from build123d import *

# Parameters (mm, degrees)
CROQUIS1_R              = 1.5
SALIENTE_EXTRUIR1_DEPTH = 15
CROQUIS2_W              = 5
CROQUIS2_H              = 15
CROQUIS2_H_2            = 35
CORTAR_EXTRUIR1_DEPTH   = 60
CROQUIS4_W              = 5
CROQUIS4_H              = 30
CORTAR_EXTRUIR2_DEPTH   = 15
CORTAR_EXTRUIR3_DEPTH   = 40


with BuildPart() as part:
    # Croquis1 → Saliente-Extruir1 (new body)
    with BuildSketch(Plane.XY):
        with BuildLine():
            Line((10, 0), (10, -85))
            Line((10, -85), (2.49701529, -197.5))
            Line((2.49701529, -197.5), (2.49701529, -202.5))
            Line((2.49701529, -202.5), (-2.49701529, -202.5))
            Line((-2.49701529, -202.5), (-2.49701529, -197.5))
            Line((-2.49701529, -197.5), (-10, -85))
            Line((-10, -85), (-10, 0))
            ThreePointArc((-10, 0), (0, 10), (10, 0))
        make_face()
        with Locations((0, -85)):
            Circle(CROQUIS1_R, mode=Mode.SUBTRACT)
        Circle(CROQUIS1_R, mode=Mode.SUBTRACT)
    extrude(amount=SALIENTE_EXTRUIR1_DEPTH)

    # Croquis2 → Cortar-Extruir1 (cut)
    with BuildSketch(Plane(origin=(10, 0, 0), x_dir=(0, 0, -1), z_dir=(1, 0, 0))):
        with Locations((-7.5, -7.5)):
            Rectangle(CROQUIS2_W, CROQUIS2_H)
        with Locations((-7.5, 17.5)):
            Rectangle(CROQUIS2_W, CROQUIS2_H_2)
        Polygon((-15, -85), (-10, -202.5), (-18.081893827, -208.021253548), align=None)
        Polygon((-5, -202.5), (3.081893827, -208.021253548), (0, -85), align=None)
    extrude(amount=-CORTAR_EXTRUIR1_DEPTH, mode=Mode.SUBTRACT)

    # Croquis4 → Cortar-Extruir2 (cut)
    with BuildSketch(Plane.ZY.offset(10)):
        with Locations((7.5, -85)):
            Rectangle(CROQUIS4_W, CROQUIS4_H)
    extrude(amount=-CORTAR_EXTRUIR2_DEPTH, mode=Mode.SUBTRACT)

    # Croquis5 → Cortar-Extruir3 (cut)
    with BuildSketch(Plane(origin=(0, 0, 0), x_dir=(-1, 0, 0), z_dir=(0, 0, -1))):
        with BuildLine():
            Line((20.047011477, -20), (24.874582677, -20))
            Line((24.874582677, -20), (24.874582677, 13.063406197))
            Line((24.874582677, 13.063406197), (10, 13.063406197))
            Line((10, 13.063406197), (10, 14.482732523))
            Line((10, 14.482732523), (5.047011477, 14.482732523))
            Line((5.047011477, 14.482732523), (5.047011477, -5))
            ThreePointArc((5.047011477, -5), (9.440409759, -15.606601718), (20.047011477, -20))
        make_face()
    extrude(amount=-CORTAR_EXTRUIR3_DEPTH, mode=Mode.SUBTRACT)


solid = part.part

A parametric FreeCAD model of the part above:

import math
import FreeCAD as App
import Part
import Sketcher


def add_polygon(sketch, points):
    """Adds a closed chain of lines whose ends are joined by coincident constraints."""
    first, n = sketch.GeometryCount, len(points)
    for a, b in zip(points, points[1:] + points[:1]):
        sketch.addGeometry(Part.LineSegment(App.Vector(*a, 0), App.Vector(*b, 0)), False)
    for i in range(n):
        sketch.addConstraint(Sketcher.Constraint("Coincident", first + i, 2, first + (i + 1) % n, 1))

doc = App.newDocument("Part")
params = doc.addObject("Spreadsheet::Sheet", "Params")
for row, (alias, value) in enumerate([
    ("sketch1_diameter", "3 mm"),
    ("sketch1_radius", "10 mm"),
    ("sketch1_height", "85 mm"),
    ("sketch1_height2", "5 mm"),
    ("pad1_length", "15 mm"),
    ("sketch2_width", "50 mm"),
    ("sketch2_height", "5 mm"),
    ("pocket1_length", "60 mm"),
    ("sketch3_width", "30 mm"),
    ("sketch3_height", "5 mm"),
    ("pocket2_length", "15 mm"),
    ("sketch4_radius", "15 mm"),
    ("pocket3_length", "40 mm"),
], start=1):
    params.set(f"A{row}", alias)
    params.set(f"B{row}", "=" + value)
    params.setAlias(f"B{row}", alias)

body = doc.addObject("PartDesign::Body", "Body")

# Sketch on XY plane
sketch1 = body.newObject("Sketcher::SketchObject", "Sketch")
sketch1.AttachmentSupport = (doc.getObject("XY_Plane"), [""])
sketch1.MapMode = "FlatFace"
sketch1.addGeometry(Part.LineSegment(App.Vector(10, -85, 0), App.Vector(10, 0, 0)), False)
sketch1.addGeometry(Part.ArcOfCircle(Part.Circle(App.Vector(0, 0, 0), App.Vector(0, 0, 1), 10), math.radians(0), math.radians(180)), False)
sketch1.addGeometry(Part.LineSegment(App.Vector(-10, 0, 0), App.Vector(-10, -85, 0)), False)
sketch1.addGeometry(Part.LineSegment(App.Vector(-10, -85, 0), App.Vector(-2.5, -197.5, 0)), False)
sketch1.addGeometry(Part.LineSegment(App.Vector(-2.5, -197.5, 0), App.Vector(-2.5, -202.5, 0)), False)
sketch1.addGeometry(Part.LineSegment(App.Vector(-2.5, -202.5, 0), App.Vector(2.5, -202.5, 0)), False)
sketch1.addGeometry(Part.LineSegment(App.Vector(2.5, -202.5, 0), App.Vector(2.5, -197.5, 0)), False)
sketch1.addGeometry(Part.LineSegment(App.Vector(2.5, -197.5, 0), App.Vector(10, -85, 0)), False)
sketch1.addGeometry(Part.Circle(App.Vector(0, -85, 0), App.Vector(0, 0, 1), 1.5), False)
sketch1.addGeometry(Part.Circle(App.Vector(0, 0, 0), App.Vector(0, 0, 1), 1.5), False)
sketch1.addConstraint(Sketcher.Constraint("Tangent", 0, 2, 1, 1))
sketch1.addConstraint(Sketcher.Constraint("Tangent", 1, 2, 2, 1))
sketch1.addConstraint(Sketcher.Constraint("Coincident", 2, 2, 3, 1))
sketch1.addConstraint(Sketcher.Constraint("Coincident", 3, 2, 4, 1))
sketch1.addConstraint(Sketcher.Constraint("Coincident", 4, 2, 5, 1))
sketch1.addConstraint(Sketcher.Constraint("Coincident", 5, 2, 6, 1))
sketch1.addConstraint(Sketcher.Constraint("Coincident", 6, 2, 7, 1))
sketch1.addConstraint(Sketcher.Constraint("Coincident", 7, 2, 0, 1))
sketch1.addConstraint(Sketcher.Constraint("Vertical", 0))
sketch1.addConstraint(Sketcher.Constraint("Vertical", 2))
sketch1.addConstraint(Sketcher.Constraint("Vertical", 4))
sketch1.addConstraint(Sketcher.Constraint("Horizontal", 5))
sketch1.addConstraint(Sketcher.Constraint("Vertical", 6))
sketch1.addConstraint(Sketcher.Constraint("Coincident", 1, 3, -1, 1))
sketch1.addConstraint(Sketcher.Constraint("Coincident", 9, 3, -1, 1))
sketch1.addConstraint(Sketcher.Constraint("Equal", 8, 9))
sketch1.addConstraint(Sketcher.Constraint("Symmetric", 3, 2, 6, 2, -2))
sketch1.addConstraint(Sketcher.Constraint("PointOnObject", 8, 3, -2))
sketch1.addConstraint(Sketcher.Constraint("Horizontal", 8, 3, 2, 2))
sketch1.addConstraint(Sketcher.Constraint("Horizontal", 2, 2, 7, 2))
sketch1.addConstraint(Sketcher.Constraint("Diameter", 8, 3.0))
sketch1.addConstraint(Sketcher.Constraint("Radius", 1, 10.0))
sketch1.addConstraint(Sketcher.Constraint("DistanceY", 0, 1, 0, 2, 85.0))
sketch1.addConstraint(Sketcher.Constraint("DistanceY", 4, 2, 4, 1, 5.0))
sketch1.addConstraint(Sketcher.Constraint("DistanceY", 3, 2, -1, 1, 197.5))
sketch1.addConstraint(Sketcher.Constraint("DistanceX", 5, 1, 5, 2, 4.994031))
sketch1.setExpression("Constraints[20]", "Params.sketch1_diameter")
sketch1.setExpression("Constraints[21]", "Params.sketch1_radius")
sketch1.setExpression("Constraints[22]", "Params.sketch1_height")
sketch1.setExpression("Constraints[23]", "Params.sketch1_height2")
pad1 = body.newObject("PartDesign::Pad", "Pad")
pad1.Profile = sketch1
pad1.setExpression("Length", "Params.pad1_length")

# Sketch on YZ plane
sketch2 = body.newObject("Sketcher::SketchObject", "Sketch001")
sketch2.AttachmentSupport = (doc.getObject("YZ_Plane"), [""])
sketch2.MapMode = "FlatFace"
sketch2.AttachmentOffset = App.Placement(App.Vector(0, 0, 10), App.Rotation())
add_polygon(sketch2, [(-15, 10), (-15, 5), (35, 5), (35, 10)])  # lines 0-3
add_polygon(sketch2, [(-202, 10), (-85, 15), (-208, 18)])  # lines 4-6
add_polygon(sketch2, [(-202, 5), (-208, -3), (-85, 0)])  # lines 7-9
sketch2.addConstraint(Sketcher.Constraint("Vertical", 0))
sketch2.addConstraint(Sketcher.Constraint("Horizontal", 1))
sketch2.addConstraint(Sketcher.Constraint("Vertical", 2))
sketch2.addConstraint(Sketcher.Constraint("Horizontal", 3))
sketch2.addConstraint(Sketcher.Constraint("PointOnObject", 8, 2, -1))
sketch2.addConstraint(Sketcher.Constraint("Horizontal", 3, 2, 6, 2))
sketch2.addConstraint(Sketcher.Constraint("Horizontal", 1, 2, 9, 2))
sketch2.addConstraint(Sketcher.Constraint("Vertical", 5, 2, 7, 2))
sketch2.addConstraint(Sketcher.Constraint("Vertical", 4, 2, 8, 2))
sketch2.addConstraint(Sketcher.Constraint("Vertical", 6, 2, 9, 2))
sketch2.addConstraint(Sketcher.Constraint("Equal", 6, 7))
sketch2.addConstraint(Sketcher.Constraint("Equal", 5, 8))
sketch2.addConstraint(Sketcher.Constraint("DistanceX", 1, 1, 1, 2, 50.0))
sketch2.addConstraint(Sketcher.Constraint("DistanceY", 0, 2, 0, 1, 5.0))
sketch2.addConstraint(Sketcher.Constraint("DistanceX", 0, 2, -1, 1, 15.0))
sketch2.addConstraint(Sketcher.Constraint("DistanceY", -1, 1, 0, 2, 5.0))
sketch2.addConstraint(Sketcher.Constraint("DistanceX", 4, 2, -1, 1, 85.0))
sketch2.addConstraint(Sketcher.Constraint("DistanceX", 6, 2, -1, 1, 202.5))
sketch2.addConstraint(Sketcher.Constraint("Distance", 5, 123.059851))
sketch2.addConstraint(Sketcher.Constraint("Distance", 6, 9.787811))
sketch2.setExpression("Constraints[22]", "Params.sketch2_width")
sketch2.setExpression("Constraints[23]", "Params.sketch2_height")
pocket1 = body.newObject("PartDesign::Pocket", "Pocket")
pocket1.Profile = sketch2
pocket1.setExpression("Length", "Params.pocket1_length")

# Sketch on YZ plane
sketch3 = body.newObject("Sketcher::SketchObject", "Sketch002")
sketch3.AttachmentSupport = (doc.getObject("YZ_Plane"), [""])
sketch3.MapMode = "FlatFace"
sketch3.AttachmentOffset = App.Placement(App.Vector(0, 0, -10), App.Rotation())
add_polygon(sketch3, [(-70, 5), (-100, 5), (-100, 10), (-70, 10)])  # lines 0-3
sketch3.addConstraint(Sketcher.Constraint("Horizontal", 0))
sketch3.addConstraint(Sketcher.Constraint("Vertical", 1))
sketch3.addConstraint(Sketcher.Constraint("Horizontal", 2))
sketch3.addConstraint(Sketcher.Constraint("Vertical", 3))
sketch3.addConstraint(Sketcher.Constraint("DistanceX", 0, 2, 0, 1, 30.0))
sketch3.addConstraint(Sketcher.Constraint("DistanceY", 1, 1, 1, 2, 5.0))
sketch3.addConstraint(Sketcher.Constraint("DistanceX", 0, 2, -1, 1, 100.0))
sketch3.addConstraint(Sketcher.Constraint("DistanceY", -1, 1, 0, 2, 5.0))
sketch3.setExpression("Constraints[8]", "Params.sketch3_width")
sketch3.setExpression("Constraints[9]", "Params.sketch3_height")
pocket2 = body.newObject("PartDesign::Pocket", "Pocket001")
pocket2.Profile = sketch3
pocket2.setExpression("Length", "Params.pocket2_length")
pocket2.Reversed = True

# Sketch on XY plane
sketch4 = body.newObject("Sketcher::SketchObject", "Sketch003")
sketch4.AttachmentSupport = (doc.getObject("XY_Plane"), [""])
sketch4.MapMode = "FlatFace"
sketch4.addGeometry(Part.LineSegment(App.Vector(-20, -20, 0), App.Vector(-24.9, -20, 0)), False)
sketch4.addGeometry(Part.LineSegment(App.Vector(-24.9, -20, 0), App.Vector(-24.9, 13.1, 0)), False)
sketch4.addGeometry(Part.LineSegment(App.Vector(-24.9, 13.1, 0), App.Vector(-10, 13.1, 0)), False)
sketch4.addGeometry(Part.LineSegment(App.Vector(-10, 13.1, 0), App.Vector(-10, 14.5, 0)), False)
sketch4.addGeometry(Part.LineSegment(App.Vector(-10, 14.5, 0), App.Vector(-5, 14.5, 0)), False)
sketch4.addGeometry(Part.LineSegment(App.Vector(-5, 14.5, 0), App.Vector(-5, -5, 0)), False)
sketch4.addGeometry(Part.ArcOfCircle(Part.Circle(App.Vector(-20, -5, 0), App.Vector(0, 0, 1), 15), math.radians(-90), math.radians(0)), False)
sketch4.addConstraint(Sketcher.Constraint("Coincident", 0, 2, 1, 1))
sketch4.addConstraint(Sketcher.Constraint("Coincident", 1, 2, 2, 1))
sketch4.addConstraint(Sketcher.Constraint("Coincident", 2, 2, 3, 1))
sketch4.addConstraint(Sketcher.Constraint("Coincident", 3, 2, 4, 1))
sketch4.addConstraint(Sketcher.Constraint("Coincident", 4, 2, 5, 1))
sketch4.addConstraint(Sketcher.Constraint("Tangent", 5, 2, 6, 2))
sketch4.addConstraint(Sketcher.Constraint("Tangent", 6, 1, 0, 1))
sketch4.addConstraint(Sketcher.Constraint("Horizontal", 0))
sketch4.addConstraint(Sketcher.Constraint("Vertical", 1))
sketch4.addConstraint(Sketcher.Constraint("Horizontal", 2))
sketch4.addConstraint(Sketcher.Constraint("Vertical", 3))
sketch4.addConstraint(Sketcher.Constraint("Horizontal", 4))
sketch4.addConstraint(Sketcher.Constraint("Vertical", 5))
sketch4.addConstraint(Sketcher.Constraint("Radius", 6, 15.0))
sketch4.addConstraint(Sketcher.Constraint("DistanceY", 6, 3, -1, 1, 5.0))
sketch4.addConstraint(Sketcher.Constraint("DistanceX", 2, 2, -1, 1, 10.0))
sketch4.addConstraint(Sketcher.Constraint("DistanceX", 0, 2, 0, 1, 4.827571))
sketch4.addConstraint(Sketcher.Constraint("DistanceX", 4, 1, 4, 2, 4.952989))
sketch4.addConstraint(Sketcher.Constraint("DistanceY", 1, 1, 1, 2, 33.063406))
sketch4.addConstraint(Sketcher.Constraint("DistanceY", 3, 1, 3, 2, 1.419326))
sketch4.setExpression("Constraints[13]", "Params.sketch4_radius")
pocket3 = body.newObject("PartDesign::Pocket", "Pocket002")
pocket3.Profile = sketch4
pocket3.setExpression("Length", "Params.pocket3_length")
pocket3.Reversed = True

doc.recompute()
